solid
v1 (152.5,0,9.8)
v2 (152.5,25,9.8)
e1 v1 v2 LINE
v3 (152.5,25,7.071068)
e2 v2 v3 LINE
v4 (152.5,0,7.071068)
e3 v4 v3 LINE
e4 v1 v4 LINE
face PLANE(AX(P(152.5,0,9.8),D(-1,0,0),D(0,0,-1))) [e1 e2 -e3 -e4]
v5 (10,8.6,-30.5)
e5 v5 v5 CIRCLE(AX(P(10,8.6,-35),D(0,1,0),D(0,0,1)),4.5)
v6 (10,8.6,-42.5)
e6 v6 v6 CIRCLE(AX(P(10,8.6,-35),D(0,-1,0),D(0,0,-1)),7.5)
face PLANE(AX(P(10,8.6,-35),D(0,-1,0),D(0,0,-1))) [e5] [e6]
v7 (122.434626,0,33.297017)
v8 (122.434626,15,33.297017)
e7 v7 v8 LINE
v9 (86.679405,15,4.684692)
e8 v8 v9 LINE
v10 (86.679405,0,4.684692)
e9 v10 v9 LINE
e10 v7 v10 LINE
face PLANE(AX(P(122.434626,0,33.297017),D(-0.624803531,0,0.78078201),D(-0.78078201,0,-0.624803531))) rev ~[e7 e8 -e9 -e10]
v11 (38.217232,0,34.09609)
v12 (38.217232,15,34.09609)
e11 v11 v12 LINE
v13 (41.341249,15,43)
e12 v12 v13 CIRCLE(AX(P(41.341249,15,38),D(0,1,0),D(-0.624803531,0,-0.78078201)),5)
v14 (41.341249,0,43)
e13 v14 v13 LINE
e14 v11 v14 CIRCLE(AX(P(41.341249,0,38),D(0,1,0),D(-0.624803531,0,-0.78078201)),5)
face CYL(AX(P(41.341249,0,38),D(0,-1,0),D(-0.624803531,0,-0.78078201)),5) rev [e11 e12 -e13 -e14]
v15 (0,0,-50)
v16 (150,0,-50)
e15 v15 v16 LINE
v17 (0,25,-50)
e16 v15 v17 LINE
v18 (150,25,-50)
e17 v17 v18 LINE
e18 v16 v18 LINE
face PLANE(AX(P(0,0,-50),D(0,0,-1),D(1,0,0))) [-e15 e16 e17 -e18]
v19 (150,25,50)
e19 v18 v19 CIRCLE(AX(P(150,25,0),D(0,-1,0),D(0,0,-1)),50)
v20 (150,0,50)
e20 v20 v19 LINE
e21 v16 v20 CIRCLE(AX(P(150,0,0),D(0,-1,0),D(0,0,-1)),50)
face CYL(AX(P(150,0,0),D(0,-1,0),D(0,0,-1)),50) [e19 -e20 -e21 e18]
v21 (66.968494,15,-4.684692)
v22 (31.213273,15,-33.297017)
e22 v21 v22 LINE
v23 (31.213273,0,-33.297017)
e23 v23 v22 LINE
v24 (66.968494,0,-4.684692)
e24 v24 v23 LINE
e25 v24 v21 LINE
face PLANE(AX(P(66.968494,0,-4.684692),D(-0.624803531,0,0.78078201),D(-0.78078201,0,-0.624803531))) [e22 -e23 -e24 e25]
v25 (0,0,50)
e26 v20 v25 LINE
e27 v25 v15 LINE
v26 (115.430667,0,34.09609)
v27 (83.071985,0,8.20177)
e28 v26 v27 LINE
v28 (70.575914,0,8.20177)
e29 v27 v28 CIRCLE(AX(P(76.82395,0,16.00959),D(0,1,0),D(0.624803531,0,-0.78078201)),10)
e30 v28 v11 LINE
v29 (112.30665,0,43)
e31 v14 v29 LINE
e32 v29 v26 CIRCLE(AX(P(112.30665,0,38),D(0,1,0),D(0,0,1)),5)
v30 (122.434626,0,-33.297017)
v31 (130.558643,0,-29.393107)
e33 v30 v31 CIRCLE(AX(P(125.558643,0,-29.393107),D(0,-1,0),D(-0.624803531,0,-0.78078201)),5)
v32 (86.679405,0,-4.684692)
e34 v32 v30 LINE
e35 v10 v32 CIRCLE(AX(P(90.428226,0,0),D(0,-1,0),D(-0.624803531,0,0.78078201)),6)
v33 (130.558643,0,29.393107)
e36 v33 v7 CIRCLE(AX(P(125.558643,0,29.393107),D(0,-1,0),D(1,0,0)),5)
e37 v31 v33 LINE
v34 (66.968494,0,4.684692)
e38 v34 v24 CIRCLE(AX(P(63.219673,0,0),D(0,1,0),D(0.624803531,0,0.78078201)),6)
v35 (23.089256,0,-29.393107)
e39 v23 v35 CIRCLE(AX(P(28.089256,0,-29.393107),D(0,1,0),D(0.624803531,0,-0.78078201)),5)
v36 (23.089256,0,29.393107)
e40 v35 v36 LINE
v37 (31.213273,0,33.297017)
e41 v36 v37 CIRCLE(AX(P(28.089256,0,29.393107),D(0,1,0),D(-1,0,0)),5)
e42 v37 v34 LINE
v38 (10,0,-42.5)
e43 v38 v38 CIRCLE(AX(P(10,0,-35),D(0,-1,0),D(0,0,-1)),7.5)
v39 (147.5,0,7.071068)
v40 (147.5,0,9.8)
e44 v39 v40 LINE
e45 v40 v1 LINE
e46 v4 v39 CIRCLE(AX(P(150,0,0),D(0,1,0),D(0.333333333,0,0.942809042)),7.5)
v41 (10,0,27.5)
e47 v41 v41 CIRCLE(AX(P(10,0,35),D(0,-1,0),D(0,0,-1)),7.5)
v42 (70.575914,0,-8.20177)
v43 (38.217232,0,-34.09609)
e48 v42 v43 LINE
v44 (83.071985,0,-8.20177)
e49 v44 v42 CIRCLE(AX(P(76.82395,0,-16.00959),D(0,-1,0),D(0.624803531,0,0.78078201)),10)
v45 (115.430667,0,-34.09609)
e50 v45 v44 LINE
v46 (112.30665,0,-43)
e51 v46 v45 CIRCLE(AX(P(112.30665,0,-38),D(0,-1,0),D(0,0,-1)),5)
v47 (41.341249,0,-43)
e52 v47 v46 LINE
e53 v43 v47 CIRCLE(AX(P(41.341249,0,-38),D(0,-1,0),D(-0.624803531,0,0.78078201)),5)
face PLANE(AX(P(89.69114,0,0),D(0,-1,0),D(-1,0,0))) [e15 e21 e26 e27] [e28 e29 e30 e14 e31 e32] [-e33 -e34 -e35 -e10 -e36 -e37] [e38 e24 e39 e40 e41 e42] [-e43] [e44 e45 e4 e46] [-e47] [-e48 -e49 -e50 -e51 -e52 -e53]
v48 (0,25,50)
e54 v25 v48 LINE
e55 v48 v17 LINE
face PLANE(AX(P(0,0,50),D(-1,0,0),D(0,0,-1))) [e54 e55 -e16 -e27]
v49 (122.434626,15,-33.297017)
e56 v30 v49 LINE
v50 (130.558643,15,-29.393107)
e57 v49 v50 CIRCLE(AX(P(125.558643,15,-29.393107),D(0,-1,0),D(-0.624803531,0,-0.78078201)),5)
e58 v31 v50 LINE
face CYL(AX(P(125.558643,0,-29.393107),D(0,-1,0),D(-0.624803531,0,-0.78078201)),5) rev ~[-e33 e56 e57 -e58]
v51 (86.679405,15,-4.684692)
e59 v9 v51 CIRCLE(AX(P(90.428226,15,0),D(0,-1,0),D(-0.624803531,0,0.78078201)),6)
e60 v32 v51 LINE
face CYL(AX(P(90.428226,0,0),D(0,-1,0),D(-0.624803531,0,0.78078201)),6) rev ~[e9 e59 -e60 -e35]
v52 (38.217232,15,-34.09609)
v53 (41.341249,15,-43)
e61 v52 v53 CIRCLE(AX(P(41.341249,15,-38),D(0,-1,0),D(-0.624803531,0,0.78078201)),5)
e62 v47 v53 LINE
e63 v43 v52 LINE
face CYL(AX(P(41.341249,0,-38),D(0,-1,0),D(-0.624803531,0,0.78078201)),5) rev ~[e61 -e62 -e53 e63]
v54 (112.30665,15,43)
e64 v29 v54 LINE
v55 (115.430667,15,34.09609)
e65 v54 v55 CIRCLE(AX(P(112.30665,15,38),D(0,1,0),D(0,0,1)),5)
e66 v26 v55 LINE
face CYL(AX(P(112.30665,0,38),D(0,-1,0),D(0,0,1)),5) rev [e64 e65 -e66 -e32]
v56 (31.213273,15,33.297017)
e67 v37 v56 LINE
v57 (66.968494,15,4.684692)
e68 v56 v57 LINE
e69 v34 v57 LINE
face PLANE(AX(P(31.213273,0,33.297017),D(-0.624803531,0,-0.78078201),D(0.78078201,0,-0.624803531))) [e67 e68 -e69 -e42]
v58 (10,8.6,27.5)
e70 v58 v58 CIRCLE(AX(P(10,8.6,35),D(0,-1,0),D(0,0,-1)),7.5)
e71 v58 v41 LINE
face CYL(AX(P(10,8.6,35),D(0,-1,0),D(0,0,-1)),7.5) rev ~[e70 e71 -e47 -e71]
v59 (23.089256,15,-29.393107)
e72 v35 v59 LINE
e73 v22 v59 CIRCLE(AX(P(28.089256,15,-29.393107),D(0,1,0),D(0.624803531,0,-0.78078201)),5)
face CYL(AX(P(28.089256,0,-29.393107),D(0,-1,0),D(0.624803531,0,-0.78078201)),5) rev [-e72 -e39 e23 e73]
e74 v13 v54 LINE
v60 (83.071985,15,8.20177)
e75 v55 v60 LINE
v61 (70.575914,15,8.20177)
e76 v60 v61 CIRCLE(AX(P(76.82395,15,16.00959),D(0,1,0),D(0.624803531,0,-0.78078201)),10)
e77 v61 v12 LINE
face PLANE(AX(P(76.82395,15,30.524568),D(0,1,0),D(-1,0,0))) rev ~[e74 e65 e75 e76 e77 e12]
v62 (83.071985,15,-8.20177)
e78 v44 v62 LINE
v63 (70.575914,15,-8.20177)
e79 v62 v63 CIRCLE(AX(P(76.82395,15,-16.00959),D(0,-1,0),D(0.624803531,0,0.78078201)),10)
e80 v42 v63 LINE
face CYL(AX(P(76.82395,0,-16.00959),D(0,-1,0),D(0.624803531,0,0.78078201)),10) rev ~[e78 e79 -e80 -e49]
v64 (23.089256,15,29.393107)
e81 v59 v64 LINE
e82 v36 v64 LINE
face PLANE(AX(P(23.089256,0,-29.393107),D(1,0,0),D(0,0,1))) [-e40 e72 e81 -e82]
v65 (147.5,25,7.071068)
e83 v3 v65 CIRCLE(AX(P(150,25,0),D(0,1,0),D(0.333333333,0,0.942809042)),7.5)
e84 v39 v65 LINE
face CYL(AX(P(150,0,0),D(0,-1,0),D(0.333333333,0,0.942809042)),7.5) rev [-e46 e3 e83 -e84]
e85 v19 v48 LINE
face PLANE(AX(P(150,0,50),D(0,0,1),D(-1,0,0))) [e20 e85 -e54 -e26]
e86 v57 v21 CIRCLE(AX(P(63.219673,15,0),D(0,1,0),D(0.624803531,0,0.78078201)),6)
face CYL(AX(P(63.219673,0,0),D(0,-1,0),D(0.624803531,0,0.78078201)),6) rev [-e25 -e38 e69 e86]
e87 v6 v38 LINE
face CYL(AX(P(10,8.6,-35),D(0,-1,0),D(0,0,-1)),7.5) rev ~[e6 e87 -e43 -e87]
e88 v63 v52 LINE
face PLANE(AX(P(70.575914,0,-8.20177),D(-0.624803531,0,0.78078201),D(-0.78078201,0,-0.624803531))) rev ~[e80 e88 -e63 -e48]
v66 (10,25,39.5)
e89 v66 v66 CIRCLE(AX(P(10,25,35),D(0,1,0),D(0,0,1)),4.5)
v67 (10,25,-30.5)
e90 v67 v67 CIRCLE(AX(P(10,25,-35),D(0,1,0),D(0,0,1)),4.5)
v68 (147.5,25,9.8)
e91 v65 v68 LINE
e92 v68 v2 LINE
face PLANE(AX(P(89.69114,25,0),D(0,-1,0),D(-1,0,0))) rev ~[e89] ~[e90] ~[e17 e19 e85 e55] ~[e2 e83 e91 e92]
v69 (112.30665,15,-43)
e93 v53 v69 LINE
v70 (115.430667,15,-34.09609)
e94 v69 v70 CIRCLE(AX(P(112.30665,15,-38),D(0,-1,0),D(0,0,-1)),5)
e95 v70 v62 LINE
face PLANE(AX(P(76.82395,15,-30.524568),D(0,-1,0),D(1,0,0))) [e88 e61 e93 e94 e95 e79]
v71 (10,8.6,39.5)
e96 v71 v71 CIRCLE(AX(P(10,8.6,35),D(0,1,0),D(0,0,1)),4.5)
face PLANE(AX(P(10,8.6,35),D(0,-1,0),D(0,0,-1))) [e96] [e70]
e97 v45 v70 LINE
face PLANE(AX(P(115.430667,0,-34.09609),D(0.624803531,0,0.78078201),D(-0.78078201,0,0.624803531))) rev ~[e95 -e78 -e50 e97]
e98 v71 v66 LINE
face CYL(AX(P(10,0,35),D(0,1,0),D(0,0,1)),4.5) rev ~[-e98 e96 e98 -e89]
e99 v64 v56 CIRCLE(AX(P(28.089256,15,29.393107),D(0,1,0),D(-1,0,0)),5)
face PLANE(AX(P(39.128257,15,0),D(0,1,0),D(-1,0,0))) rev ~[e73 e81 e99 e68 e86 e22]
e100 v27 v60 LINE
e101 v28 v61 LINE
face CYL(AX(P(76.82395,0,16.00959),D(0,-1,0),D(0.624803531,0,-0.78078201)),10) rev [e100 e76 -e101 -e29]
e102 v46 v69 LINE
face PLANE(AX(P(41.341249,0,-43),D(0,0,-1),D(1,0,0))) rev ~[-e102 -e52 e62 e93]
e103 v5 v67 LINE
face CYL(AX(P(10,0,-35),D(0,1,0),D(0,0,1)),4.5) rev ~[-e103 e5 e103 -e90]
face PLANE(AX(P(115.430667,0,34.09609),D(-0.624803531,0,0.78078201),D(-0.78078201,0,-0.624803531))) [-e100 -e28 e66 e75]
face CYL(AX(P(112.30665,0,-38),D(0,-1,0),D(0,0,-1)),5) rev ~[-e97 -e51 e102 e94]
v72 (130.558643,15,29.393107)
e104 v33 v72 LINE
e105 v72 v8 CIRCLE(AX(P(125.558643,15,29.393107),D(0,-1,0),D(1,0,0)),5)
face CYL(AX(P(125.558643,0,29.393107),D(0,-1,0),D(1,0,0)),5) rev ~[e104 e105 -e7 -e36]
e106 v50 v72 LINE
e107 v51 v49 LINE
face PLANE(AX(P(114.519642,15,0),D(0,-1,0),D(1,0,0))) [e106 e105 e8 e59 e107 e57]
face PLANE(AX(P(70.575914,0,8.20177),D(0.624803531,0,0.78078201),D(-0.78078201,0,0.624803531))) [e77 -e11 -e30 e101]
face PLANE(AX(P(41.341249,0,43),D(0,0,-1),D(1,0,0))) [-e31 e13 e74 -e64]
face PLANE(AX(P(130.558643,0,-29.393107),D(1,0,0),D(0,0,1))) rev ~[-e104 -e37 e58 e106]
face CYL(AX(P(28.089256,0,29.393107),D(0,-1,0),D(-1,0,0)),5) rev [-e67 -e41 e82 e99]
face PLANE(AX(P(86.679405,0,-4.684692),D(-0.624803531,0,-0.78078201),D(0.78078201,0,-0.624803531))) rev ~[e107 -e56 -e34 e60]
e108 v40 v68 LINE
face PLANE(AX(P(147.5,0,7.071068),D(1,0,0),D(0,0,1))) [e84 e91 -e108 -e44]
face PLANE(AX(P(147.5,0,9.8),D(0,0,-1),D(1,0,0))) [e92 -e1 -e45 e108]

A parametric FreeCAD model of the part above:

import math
import FreeCAD as App
import Part
import Sketcher

V = App.Vector
Q = App.Units.Quantity

doc = App.newDocument("Part")
body = doc.addObject("PartDesign::Body", "Body")

# Sketch on XZ plane
sketch1 = body.newObject("Sketcher::SketchObject", "Sketch")
sketch1.AttachmentSupport = (doc.getObject("XZ_Plane"), [""])
sketch1.MapMode = "FlatFace"
sketch1.addGeometry([
    Part.LineSegment(V(0, -50, 0), V(0, 50, 0)),  # 0
    Part.LineSegment(V(0, 50, 0), V(150, 50, 0)),  # 1
    Part.ArcOfCircle(Part.Circle(V(150, 0, 0), V(0, 0, 1), 50), math.radians(-90), math.radians(90)),  # 2
    Part.LineSegment(V(150, -50, 0), V(0, -50, 0)),  # 3
    Part.LineSegment(V(147.5, 9.8, 0), V(147.5, 7.071068, 0)),  # 4
    Part.ArcOfCircle(Part.Circle(V(150, 0, 0), V(0, 0, 1), 7.5), math.radians(109.471221), math.radians(430.528779)),  # 5
    Part.LineSegment(V(152.5, 7.071068, 0), V(152.5, 9.8, 0)),  # 6
    Part.LineSegment(V(152.5, 9.8, 0), V(147.5, 9.8, 0)),  # 7
], False)
sketch1.addConstraint([
    Sketcher.Constraint("Coincident", 0, 2, 1, 1),
    Sketcher.Constraint("Tangent", 1, 2, 2, 2),
    Sketcher.Constraint("Tangent", 2, 1, 3, 1),
    Sketcher.Constraint("Coincident", 3, 2, 0, 1),
    Sketcher.Constraint("Coincident", 4, 2, 5, 1),
    Sketcher.Constraint("Coincident", 5, 2, 6, 1),
    Sketcher.Constraint("Coincident", 6, 2, 7, 1),
    Sketcher.Constraint("Coincident", 7, 2, 4, 1),
    Sketcher.Constraint("Vertical", 0),
    Sketcher.Constraint("Horizontal", 1),
    Sketcher.Constraint("Horizontal", 3),
    Sketcher.Constraint("Vertical", 4),
    Sketcher.Constraint("Vertical", 6),
    Sketcher.Constraint("Horizontal", 7),
    Sketcher.Constraint("Coincident", 5, 3, 2, 3),
    Sketcher.Constraint("Symmetric", 0, 2, 3, 2, -1, 1),
    Sketcher.Constraint("Horizontal", 4, 2, 5, 2),
    Sketcher.Constraint("Radius", 2, Q("50 mm")),
    Sketcher.Constraint("Radius", 5, Q("7.5 mm")),
    Sketcher.Constraint("DistanceX", 1, 1, 1, 2, Q("150 mm")),
    Sketcher.Constraint("DistanceX", 7, 2, 7, 1, Q("5 mm")),
    Sketcher.Constraint("DistanceY", -1, 1, 6, 2, Q("9.8 mm")),
])
pad1 = body.newObject("PartDesign::Pad", "Pad")
pad1.Profile = sketch1
pad1.Length = 25
pad1.Reversed = True

# Sketch on XZ plane
sketch2 = body.newObject("Sketcher::SketchObject", "Sketch001")
sketch2.AttachmentSupport = (doc.getObject("XZ_Plane"), [""])
sketch2.MapMode = "FlatFace"
sketch2.addGeometry([
    Part.Circle(V(10, 35, 0), V(0, 0, 1), 4.5),
    Part.Circle(V(10, -35, 0), V(0, 0, 1), 4.5),
], False)
sketch2.addConstraint([
    Sketcher.Constraint("Equal", 0, 1),
    Sketcher.Constraint("Symmetric", 0, 3, 1, 3, -1),
    Sketcher.Constraint("Diameter", 0, Q("9 mm")),
    Sketcher.Constraint("DistanceX", -1, 1, 0, 3, Q("10 mm")),
    Sketcher.Constraint("DistanceY", -1, 1, 0, 3, Q("35 mm")),
])
doc.recompute()
hole = body.newObject("PartDesign::Hole", "Hole")
hole.Profile = sketch2
hole.ThreadType = "None"
hole.Diameter = 9
hole.DepthType = "Dimension"
hole.Depth = 26.25
hole.DrillPoint = "Angled"
hole.DrillPointAngle = 118
hole.HoleCutType = "Counterbore"
hole.HoleCutDiameter = 15
hole.HoleCutDepth = 8.6

# Sketch on XZ plane
sketch3 = body.newObject("Sketcher::SketchObject", "Sketch002")
sketch3.AttachmentSupport = (doc.getObject("XZ_Plane"), [""])
sketch3.MapMode = "FlatFace"
sketch3.addGeometry([
    Part.LineSegment(V(66.968494, 4.684692, 0), V(31.213273, 33.297017, 0)),  # 0
    Part.ArcOfCircle(Part.Circle(V(28.089256, 29.393107, 0), V(0, 0, 1), 5), math.radians(51.332231), math.radians(180)),  # 1
    Part.LineSegment(V(23.089256, 29.393107, 0), V(23.089256, -29.393107, 0)),  # 2
    Part.ArcOfCircle(Part.Circle(V(28.089256, -29.393107, 0), V(0, 0, 1), 5), math.radians(180), math.radians(308.667769)),  # 3
    Part.LineSegment(V(31.213273, -33.297017, 0), V(66.968494, -4.684692, 0)),  # 4
    Part.ArcOfCircle(Part.Circle(V(63.219673, 0, 0), V(0, 0, 1), 6), math.radians(-51.332231), math.radians(51.332231)),  # 5
    Part.LineSegment(V(41.341249, -43, 0), V(112.30665, -43, 0)),  # 6
    Part.ArcOfCircle(Part.Circle(V(112.30665, -38, 0), V(0, 0, 1), 5), math.radians(-90), math.radians(51.332231)),  # 7
    Part.LineSegment(V(115.430667, -34.09609, 0), V(83.071985, -8.20177, 0)),  # 8
    Part.ArcOfCircle(Part.Circle(V(76.82395, -16.00959, 0), V(0, 0, 1), 10), math.radians(51.332231), math.radians(128.667769)),  # 9
    Part.LineSegment(V(70.575914, -8.20177, 0), V(38.217232, -34.09609, 0)),  # 10
    Part.ArcOfCircle(Part.Circle(V(41.341249, -38, 0), V(0, 0, 1), 5), math.radians(128.667769), math.radians(270)),  # 11
    Part.LineSegment(V(130.558643, -29.393107, 0), V(130.558643, 29.393107, 0)),  # 12
    Part.ArcOfCircle(Part.Circle(V(125.558643, 29.393107, 0), V(0, 0, 1), 5), math.radians(0), math.radians(128.667769)),  # 13
    Part.LineSegment(V(122.434626, 33.297017, 0), V(86.679405, 4.684692, 0)),  # 14
    Part.ArcOfCircle(Part.Circle(V(90.428226, 0, 0), V(0, 0, 1), 6), math.radians(128.667769), math.radians(231.332231)),  # 15
    Part.LineSegment(V(86.679405, -4.684692, 0), V(122.434626, -33.297017, 0)),  # 16
    Part.ArcOfCircle(Part.Circle(V(125.558643, -29.393107, 0), V(0, 0, 1), 5), math.radians(-128.667769), math.radians(0)),  # 17
    Part.LineSegment(V(112.30665, 43, 0), V(41.341249, 43, 0)),  # 18
    Part.ArcOfCircle(Part.Circle(V(41.341249, 38, 0), V(0, 0, 1), 5), math.radians(90), math.radians(231.332231)),  # 19
    Part.LineSegment(V(38.217232, 34.09609, 0), V(70.575914, 8.20177, 0)),  # 20
    Part.ArcOfCircle(Part.Circle(V(76.82395, 16.00959, 0), V(0, 0, 1), 10), math.radians(-128.667769), math.radians(-51.332231)),  # 21
    Part.LineSegment(V(83.071985, 8.20177, 0), V(115.430667, 34.09609, 0)),  # 22
    Part.ArcOfCircle(Part.Circle(V(112.30665, 38, 0), V(0, 0, 1), 5), math.radians(-51.332231), math.radians(90)),  # 23
], False)
sketch3.addConstraint([
    Sketcher.Constraint("Tangent", 0, 2, 1, 1),
    Sketcher.Constraint("Tangent", 1, 2, 2, 1),
    Sketcher.Constraint("Tangent", 2, 2, 3, 1),
    Sketcher.Constraint("Tangent", 3, 2, 4, 1),
    Sketcher.Constraint("Tangent", 4, 2, 5, 1),
    Sketcher.Constraint("Tangent", 5, 2, 0, 1),
    Sketcher.Constraint("Tangent", 6, 2, 7, 1),
    Sketcher.Constraint("Tangent", 7, 2, 8, 1),
    Sketcher.Constraint("Tangent", 8, 2, 9, 1),
    Sketcher.Constraint("Tangent", 9, 2, 10, 1),
    Sketcher.Constraint("Tangent", 10, 2, 11, 1),
    Sketcher.Constraint("Tangent", 11, 2, 6, 1),
    Sketcher.Constraint("Tangent", 12, 2, 13, 1),
    Sketcher.Constraint("Tangent", 13, 2, 14, 1),
    Sketcher.Constraint("Tangent", 14, 2, 15, 1),
    Sketcher.Constraint("Tangent", 15, 2, 16, 1),
    Sketcher.Constraint("Tangent", 16, 2, 17, 1),
    Sketcher.Constraint("Tangent", 17, 2, 12, 1),
    Sketcher.Constraint("Tangent", 18, 2, 19, 1),
    Sketcher.Constraint("Tangent", 19, 2, 20, 1),
    Sketcher.Constraint("Tangent", 20, 2, 21, 1),
    Sketcher.Constraint("Tangent", 21, 2, 22, 1),
    Sketcher.Constraint("Tangent", 22, 2, 23, 1),
    Sketcher.Constraint("Tangent", 23, 2, 18, 1),
    Sketcher.Constraint("Vertical", 2),
    Sketcher.Constraint("Horizontal", 6),
    Sketcher.Constraint("Vertical", 12),
    Sketcher.Constraint("Horizontal", 18),
    Sketcher.Constraint("Equal", 1, 3),
    Sketcher.Constraint("Equal", 3, 7),
    Sketcher.Constraint("Equal", 7, 11),
    Sketcher.Constraint("Equal", 11, 13),
    Sketcher.Constraint("Equal", 5, 15),
    Sketcher.Constraint("Equal", 13, 17),
    Sketcher.Constraint("Equal", 17, 19),
    Sketcher.Constraint("Equal", 9, 21),
    Sketcher.Constraint("Equal", 19, 23),
    Sketcher.Constraint("Symmetric", 11, 3, 19, 3, -1),
    Sketcher.Constraint("Symmetric", 9, 3, 21, 3, -1),
    Sketcher.Constraint("Symmetric", 0, 2, 3, 2, -1),
    Sketcher.Constraint("Symmetric", 14, 2, 15, 2, -1),
    Sketcher.Constraint("Parallel", 0, 8),
    Sketcher.Constraint("Parallel", 4, 10),
    Sketcher.Constraint("Parallel", 10, 14),
    Sketcher.Constraint("Parallel", 14, 22),
    Sketcher.Constraint("Horizontal", 1, 3, 13, 3),
    Sketcher.Constraint("Radius", 1, Q("5 mm")),
    Sketcher.Constraint("Radius", 5, Q("6 mm")),
    Sketcher.Constraint("Radius", 9, Q("10 mm")),
    Sketcher.Constraint("DistanceY", 7, 3, -1, 1, Q("38 mm")),
    Sketcher.Constraint("DistanceX", 6, 1, 6, 2, Q("70.9654 mm")),
    Sketcher.Constraint("DistanceX", 0, 2, 5, 3, Q("32.0064 mm")),
    Sketcher.Constraint("DistanceY", 9, 3, 4, 2, Q("11.324898 mm")),
    Sketcher.Constraint("DistanceX", -1, 1, 7, 3, Q("112.30665 mm")),
    Sketcher.Constraint("DistanceX", 5, 3, 13, 3, Q("62.33897 mm")),
    Sketcher.Constraint("DistanceX", 15, 3, 7, 2, Q("25.002441 mm")),
])
pocket1 = body.newObject("PartDesign::Pocket", "Pocket")
pocket1.Profile = sketch3
pocket1.Length = 15

doc.recompute()
